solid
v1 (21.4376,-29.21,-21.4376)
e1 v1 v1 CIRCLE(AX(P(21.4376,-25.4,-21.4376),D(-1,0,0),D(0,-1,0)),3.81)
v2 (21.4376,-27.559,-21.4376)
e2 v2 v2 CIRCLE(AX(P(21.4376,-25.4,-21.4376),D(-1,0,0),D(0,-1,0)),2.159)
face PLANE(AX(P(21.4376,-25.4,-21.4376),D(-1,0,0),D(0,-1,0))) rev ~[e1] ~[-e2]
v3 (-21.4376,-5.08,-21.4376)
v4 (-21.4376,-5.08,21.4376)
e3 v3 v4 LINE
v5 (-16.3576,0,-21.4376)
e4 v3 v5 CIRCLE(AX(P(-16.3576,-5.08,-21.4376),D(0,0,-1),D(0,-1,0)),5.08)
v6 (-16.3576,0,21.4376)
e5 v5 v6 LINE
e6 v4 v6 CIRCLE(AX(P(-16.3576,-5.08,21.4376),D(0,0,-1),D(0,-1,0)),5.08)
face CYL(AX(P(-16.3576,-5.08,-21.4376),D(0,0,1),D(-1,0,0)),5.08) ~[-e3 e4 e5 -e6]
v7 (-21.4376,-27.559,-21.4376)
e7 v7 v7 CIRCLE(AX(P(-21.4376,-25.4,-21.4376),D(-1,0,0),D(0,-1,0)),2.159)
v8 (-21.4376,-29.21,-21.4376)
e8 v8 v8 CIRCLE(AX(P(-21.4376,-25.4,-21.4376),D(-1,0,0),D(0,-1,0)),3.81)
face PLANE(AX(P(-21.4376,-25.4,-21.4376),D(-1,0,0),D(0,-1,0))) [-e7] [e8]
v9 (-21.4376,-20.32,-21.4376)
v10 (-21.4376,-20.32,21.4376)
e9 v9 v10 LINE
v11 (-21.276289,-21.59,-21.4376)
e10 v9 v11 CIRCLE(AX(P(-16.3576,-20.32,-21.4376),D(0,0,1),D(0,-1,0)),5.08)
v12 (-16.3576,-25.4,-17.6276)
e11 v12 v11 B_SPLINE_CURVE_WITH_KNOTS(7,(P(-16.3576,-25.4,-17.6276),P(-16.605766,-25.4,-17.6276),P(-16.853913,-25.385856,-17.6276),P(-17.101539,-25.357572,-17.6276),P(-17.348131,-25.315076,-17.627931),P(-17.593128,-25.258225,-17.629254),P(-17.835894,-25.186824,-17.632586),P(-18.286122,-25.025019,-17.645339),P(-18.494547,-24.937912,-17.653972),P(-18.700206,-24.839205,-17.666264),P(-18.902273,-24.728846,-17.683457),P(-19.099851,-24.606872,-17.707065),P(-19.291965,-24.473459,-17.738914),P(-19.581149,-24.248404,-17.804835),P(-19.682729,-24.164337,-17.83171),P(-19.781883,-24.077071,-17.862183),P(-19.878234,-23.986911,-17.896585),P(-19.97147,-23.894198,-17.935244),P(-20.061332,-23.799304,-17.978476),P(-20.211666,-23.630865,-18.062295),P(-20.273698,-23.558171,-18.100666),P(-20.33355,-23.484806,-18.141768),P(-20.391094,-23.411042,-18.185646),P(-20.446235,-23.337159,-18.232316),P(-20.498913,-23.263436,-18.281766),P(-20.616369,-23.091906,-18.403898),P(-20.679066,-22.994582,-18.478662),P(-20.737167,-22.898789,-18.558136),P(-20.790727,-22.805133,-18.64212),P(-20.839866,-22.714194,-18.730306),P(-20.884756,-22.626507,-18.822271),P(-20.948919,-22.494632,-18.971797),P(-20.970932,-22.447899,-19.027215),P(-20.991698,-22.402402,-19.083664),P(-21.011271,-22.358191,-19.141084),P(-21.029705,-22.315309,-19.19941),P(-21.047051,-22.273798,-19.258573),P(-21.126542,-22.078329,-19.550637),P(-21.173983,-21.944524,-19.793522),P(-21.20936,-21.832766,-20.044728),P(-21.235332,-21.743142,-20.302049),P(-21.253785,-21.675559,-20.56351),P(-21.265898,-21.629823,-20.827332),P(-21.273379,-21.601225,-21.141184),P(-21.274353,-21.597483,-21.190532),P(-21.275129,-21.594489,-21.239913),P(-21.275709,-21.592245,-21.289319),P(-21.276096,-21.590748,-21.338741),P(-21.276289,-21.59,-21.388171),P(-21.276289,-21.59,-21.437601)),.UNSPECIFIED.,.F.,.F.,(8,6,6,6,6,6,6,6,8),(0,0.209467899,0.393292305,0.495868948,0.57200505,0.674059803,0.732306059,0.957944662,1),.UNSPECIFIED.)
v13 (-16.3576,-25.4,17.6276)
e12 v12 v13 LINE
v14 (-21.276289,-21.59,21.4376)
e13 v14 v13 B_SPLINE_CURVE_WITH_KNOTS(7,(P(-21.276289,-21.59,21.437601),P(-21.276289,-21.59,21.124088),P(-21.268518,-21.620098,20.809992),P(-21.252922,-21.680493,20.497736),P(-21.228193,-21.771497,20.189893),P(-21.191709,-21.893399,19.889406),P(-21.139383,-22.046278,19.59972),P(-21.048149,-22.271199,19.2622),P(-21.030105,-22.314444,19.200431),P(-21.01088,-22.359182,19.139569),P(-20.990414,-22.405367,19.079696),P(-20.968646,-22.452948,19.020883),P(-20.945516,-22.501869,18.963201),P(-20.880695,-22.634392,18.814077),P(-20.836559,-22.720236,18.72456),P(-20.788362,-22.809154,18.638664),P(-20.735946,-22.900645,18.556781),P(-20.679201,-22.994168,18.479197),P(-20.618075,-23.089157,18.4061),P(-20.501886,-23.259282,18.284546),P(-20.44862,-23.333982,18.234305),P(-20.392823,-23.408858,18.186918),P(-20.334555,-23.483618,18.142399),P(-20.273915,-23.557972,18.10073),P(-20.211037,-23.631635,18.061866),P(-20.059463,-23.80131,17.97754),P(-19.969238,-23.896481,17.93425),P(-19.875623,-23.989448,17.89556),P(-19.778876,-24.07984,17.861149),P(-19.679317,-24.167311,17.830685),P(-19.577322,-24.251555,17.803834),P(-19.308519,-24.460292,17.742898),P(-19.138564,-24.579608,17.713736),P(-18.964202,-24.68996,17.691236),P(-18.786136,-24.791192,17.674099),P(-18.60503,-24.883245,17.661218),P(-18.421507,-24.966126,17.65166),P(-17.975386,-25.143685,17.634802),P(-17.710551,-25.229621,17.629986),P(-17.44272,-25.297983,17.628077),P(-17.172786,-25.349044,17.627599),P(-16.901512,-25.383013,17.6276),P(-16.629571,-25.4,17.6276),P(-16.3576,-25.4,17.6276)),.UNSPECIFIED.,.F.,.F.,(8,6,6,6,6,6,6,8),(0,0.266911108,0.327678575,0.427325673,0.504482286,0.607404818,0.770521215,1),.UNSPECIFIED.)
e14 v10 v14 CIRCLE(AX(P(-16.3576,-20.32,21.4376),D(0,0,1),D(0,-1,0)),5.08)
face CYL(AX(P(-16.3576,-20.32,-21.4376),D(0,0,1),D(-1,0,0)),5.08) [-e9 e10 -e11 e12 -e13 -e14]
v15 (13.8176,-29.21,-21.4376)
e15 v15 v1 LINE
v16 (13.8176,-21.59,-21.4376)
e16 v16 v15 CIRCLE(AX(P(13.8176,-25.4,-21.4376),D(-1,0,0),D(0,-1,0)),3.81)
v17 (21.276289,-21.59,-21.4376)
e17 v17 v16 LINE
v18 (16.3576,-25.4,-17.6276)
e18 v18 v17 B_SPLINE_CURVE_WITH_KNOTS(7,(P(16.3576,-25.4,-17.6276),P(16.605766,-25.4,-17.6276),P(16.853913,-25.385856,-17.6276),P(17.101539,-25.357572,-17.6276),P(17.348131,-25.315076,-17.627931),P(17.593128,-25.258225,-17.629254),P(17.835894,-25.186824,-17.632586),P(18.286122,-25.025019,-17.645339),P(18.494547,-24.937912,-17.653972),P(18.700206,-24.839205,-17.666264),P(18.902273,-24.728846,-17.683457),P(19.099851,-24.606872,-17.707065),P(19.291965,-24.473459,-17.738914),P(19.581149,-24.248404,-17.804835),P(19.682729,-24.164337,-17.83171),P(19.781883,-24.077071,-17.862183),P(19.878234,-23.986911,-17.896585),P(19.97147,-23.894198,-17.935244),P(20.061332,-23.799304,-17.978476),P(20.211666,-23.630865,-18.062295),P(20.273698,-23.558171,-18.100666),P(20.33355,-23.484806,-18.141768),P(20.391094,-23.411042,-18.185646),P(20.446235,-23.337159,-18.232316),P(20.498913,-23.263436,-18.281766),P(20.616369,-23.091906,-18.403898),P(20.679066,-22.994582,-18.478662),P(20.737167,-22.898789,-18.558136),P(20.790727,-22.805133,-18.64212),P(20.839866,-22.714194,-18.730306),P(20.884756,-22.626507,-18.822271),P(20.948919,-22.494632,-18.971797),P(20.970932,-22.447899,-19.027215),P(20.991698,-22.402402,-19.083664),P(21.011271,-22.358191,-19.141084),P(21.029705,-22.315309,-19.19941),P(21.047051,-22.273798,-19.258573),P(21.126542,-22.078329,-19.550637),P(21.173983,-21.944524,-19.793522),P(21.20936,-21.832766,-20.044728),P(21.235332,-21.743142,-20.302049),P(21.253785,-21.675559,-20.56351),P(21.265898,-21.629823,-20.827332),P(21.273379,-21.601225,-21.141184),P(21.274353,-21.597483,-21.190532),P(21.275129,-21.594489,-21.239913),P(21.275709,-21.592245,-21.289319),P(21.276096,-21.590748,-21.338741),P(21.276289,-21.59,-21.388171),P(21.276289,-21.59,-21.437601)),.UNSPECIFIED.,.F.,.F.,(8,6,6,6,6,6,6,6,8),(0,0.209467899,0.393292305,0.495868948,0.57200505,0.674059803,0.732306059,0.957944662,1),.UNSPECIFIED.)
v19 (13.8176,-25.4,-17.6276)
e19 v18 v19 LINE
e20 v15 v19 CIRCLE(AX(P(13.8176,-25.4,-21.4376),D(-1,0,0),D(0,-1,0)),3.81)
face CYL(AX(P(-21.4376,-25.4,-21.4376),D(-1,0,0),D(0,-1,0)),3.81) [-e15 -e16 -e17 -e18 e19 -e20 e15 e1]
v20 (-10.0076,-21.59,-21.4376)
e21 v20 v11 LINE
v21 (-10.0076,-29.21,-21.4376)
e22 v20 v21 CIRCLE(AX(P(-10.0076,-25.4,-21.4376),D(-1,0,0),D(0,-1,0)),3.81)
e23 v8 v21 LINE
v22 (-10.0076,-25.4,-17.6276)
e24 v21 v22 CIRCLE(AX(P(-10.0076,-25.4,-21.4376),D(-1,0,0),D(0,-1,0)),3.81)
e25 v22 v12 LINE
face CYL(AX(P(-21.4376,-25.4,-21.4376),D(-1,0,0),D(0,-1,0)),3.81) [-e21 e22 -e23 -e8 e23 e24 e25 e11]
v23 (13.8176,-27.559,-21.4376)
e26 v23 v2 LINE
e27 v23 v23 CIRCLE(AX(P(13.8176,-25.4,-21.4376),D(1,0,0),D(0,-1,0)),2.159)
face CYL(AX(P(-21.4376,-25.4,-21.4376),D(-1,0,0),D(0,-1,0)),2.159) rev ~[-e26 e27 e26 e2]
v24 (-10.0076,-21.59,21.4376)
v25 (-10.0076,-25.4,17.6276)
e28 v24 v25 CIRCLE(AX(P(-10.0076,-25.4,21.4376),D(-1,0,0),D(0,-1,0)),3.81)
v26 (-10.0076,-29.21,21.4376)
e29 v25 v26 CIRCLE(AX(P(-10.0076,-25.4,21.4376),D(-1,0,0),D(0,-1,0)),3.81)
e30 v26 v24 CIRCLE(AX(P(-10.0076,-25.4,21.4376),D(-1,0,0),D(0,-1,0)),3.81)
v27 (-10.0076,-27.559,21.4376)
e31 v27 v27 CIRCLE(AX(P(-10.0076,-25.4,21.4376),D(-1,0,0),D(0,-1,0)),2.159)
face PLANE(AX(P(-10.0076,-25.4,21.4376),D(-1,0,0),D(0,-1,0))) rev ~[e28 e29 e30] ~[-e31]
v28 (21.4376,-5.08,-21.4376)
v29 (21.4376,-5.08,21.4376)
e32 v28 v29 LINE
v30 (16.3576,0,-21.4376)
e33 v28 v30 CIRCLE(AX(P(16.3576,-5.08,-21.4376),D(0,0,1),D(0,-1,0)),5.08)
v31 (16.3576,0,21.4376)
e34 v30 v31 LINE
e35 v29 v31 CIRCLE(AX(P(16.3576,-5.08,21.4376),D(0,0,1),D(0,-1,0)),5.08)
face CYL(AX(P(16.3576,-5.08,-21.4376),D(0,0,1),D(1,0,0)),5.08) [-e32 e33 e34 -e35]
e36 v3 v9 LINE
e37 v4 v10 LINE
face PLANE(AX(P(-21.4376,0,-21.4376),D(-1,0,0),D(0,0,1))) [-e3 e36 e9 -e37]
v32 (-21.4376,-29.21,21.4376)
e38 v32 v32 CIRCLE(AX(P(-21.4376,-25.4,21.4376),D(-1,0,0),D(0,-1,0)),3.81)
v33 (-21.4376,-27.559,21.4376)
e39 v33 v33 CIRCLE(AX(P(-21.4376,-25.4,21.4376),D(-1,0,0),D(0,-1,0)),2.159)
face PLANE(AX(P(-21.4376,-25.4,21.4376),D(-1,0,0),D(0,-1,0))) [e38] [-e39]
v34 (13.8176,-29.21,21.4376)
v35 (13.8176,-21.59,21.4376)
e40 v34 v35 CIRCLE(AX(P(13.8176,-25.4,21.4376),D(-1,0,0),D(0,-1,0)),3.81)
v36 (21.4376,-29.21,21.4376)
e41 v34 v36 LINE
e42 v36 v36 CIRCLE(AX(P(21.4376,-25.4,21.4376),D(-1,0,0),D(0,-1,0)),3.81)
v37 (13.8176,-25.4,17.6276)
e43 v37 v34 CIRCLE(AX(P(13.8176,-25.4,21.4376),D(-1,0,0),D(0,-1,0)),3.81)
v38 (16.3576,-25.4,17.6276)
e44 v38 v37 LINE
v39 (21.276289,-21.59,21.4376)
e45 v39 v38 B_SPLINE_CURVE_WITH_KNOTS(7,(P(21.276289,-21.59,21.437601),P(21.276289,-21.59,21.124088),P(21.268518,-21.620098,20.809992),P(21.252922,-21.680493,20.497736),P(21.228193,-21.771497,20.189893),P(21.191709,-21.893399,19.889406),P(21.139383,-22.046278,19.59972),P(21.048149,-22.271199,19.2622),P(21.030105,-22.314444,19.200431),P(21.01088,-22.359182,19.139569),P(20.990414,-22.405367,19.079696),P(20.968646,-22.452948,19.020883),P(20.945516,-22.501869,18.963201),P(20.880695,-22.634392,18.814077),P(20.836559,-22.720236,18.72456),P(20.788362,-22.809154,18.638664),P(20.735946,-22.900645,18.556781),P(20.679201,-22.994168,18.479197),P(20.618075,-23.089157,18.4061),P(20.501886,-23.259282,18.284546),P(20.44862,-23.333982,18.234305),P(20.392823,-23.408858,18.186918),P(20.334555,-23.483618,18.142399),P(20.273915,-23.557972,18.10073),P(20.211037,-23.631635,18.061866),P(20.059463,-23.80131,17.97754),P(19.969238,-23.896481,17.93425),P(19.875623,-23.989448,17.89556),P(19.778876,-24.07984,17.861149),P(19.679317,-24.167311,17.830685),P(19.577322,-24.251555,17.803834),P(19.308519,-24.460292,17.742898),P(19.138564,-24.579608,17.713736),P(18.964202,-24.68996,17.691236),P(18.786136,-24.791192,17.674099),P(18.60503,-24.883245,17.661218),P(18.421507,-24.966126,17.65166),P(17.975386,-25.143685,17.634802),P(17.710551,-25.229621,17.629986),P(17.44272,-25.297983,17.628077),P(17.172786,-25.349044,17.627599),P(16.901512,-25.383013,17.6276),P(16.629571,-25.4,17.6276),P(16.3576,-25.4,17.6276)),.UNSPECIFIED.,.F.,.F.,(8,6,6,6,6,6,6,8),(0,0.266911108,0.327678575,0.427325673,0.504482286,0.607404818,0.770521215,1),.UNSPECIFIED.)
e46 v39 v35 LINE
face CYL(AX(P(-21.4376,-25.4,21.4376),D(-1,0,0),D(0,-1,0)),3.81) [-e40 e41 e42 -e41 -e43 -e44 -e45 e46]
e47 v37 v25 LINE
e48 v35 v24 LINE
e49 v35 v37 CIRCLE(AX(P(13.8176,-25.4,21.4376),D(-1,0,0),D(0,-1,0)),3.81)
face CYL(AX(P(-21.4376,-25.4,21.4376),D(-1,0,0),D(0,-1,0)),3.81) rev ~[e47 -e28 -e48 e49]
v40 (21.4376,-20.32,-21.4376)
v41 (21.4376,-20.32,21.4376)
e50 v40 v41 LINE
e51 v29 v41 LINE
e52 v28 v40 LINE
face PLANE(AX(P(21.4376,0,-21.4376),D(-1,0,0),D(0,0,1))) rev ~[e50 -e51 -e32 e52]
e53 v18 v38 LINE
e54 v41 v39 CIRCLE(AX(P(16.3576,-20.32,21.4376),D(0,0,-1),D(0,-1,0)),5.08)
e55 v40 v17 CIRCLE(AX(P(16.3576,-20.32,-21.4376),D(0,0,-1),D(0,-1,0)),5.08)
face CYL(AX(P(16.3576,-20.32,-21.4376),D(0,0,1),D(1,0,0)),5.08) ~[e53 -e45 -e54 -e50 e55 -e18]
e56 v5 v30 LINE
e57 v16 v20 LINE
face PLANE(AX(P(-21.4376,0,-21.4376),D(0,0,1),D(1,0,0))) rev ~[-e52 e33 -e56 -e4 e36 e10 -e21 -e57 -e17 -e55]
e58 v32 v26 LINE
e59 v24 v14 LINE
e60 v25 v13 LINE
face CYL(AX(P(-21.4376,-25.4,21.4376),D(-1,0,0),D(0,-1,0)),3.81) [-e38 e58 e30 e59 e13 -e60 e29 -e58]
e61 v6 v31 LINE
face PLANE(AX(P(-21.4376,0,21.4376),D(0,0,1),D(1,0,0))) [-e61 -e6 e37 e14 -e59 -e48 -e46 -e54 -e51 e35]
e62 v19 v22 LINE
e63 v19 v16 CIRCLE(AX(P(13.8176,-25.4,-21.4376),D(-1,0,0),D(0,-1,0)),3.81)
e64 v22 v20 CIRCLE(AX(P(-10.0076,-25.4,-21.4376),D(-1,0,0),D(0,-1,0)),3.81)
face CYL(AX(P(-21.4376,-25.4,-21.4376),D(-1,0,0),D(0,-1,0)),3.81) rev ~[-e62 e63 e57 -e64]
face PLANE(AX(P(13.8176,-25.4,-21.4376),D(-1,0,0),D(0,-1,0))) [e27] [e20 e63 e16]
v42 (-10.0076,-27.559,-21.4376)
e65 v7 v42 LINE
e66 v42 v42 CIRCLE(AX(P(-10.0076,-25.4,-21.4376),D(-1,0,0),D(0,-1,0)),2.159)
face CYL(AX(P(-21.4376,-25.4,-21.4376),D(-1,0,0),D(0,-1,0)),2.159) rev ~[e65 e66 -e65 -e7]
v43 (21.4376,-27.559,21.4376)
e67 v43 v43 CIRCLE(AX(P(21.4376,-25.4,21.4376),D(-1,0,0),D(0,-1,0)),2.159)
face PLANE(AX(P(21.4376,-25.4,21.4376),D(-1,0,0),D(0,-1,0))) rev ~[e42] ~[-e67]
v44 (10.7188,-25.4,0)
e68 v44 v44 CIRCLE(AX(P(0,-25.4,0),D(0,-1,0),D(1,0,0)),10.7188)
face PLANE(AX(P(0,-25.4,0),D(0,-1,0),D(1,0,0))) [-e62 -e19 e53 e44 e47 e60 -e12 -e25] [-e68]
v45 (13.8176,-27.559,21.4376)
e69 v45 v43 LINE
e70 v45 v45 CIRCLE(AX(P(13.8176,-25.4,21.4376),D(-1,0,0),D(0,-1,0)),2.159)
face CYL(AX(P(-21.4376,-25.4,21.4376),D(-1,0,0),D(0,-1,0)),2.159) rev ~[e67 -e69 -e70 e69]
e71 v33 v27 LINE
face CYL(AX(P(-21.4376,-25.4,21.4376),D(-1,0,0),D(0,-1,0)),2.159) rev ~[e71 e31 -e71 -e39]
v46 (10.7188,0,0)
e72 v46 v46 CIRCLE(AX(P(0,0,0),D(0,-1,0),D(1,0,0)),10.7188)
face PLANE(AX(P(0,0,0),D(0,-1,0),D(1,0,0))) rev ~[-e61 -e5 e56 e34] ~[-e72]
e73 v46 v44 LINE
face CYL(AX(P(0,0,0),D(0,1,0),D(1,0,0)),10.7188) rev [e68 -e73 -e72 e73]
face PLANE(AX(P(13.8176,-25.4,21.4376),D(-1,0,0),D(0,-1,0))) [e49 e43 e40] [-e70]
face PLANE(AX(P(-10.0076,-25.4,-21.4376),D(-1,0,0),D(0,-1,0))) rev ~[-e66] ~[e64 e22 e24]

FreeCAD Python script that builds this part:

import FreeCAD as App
import Part
import Sketcher
Q = App.Units.Quantity


def edges_at(feature, points):
    """Names of the edges that pass closest to the given points."""
    edges = feature.Shape.Edges
    near = lambda p: min(range(len(edges)), key=lambda i: edges[i].distToShape(Part.Vertex(*p))[0])
    return sorted({f"Edge{near(p) + 1}" for p in points})

doc = App.newDocument("Part")
body = doc.addObject("PartDesign::Body", "Body")

sketch1 = body.newObject("Sketcher::SketchObject", "Sketch")
sketch1.AttachmentSupport = (doc.getObject("XZ_Plane"), [""])
sketch1.MapMode = "FlatFace"
sketch1.addGeometry(Part.LineSegment(App.Vector(-21, 21, 0), App.Vector(-21, -21, 0)), False)
sketch1.addGeometry(Part.LineSegment(App.Vector(-21, -21, 0), App.Vector(21, -21, 0)), False)
sketch1.addGeometry(Part.LineSegment(App.Vector(21, -21, 0), App.Vector(21, 21, 0)), False)
sketch1.addGeometry(Part.LineSegment(App.Vector(21, 21, 0), App.Vector(-21, 21, 0)), False)
sketch1.addGeometry(Part.Circle(App.Vector(0, 0, 0), App.Vector(0, 0, 1), 11), False)
sketch1.addConstraint(Sketcher.Constraint("Coincident", 0, 2, 1, 1))
sketch1.addConstraint(Sketcher.Constraint("Coincident", 1, 2, 2, 1))
sketch1.addConstraint(Sketcher.Constraint("Coincident", 2, 2, 3, 1))
sketch1.addConstraint(Sketcher.Constraint("Coincident", 3, 2, 0, 1))
sketch1.addConstraint(Sketcher.Constraint("Vertical", 0))
sketch1.addConstraint(Sketcher.Constraint("Horizontal", 1))
sketch1.addConstraint(Sketcher.Constraint("Vertical", 2))
sketch1.addConstraint(Sketcher.Constraint("Horizontal", 3))
sketch1.addConstraint(Sketcher.Constraint("Coincident", 4, 3, -1, 1))
sketch1.addConstraint(Sketcher.Constraint("Symmetric", 0, 2, 2, 2, -1, 1))
sketch1.addConstraint(Sketcher.Constraint("Equal", 3, 0))
sketch1.addConstraint(Sketcher.Constraint("Diameter", 4, Q("0.844 in")))
sketch1.addConstraint(Sketcher.Constraint("DistanceX", 1, 1, 1, 2, Q("1.688 in")))
pad1 = body.newObject("PartDesign::Pad", "Pad")
pad1.Profile = sketch1
pad1.Length = Q("1 in")
doc.recompute()

fillet = body.newObject("PartDesign::Fillet", "Fillet")
fillet.Base = (pad1, edges_at(pad1, [
    (21.438, 0, 0),
    (21.438, -25.4, 0),
    (-21.438, 0, 0),
    (-21.438, -25.4, 0),
]))
fillet.Radius = Q("0.2 in")

sketch2 = body.newObject("Sketcher::SketchObject", "Sketch001")
sketch2.AttachmentSupport = (doc.getObject("YZ_Plane"), [""])
sketch2.MapMode = "FlatFace"
sketch2.AttachmentOffset = App.Placement(App.Vector(0, 0, -0.844 * 25.4), App.Rotation())
sketch2.addGeometry(Part.Circle(App.Vector(-25.4, 21.4, 0), App.Vector(0, 0, 1), 3.8), False)
sketch2.addGeometry(Part.Circle(App.Vector(-25.4, -21.4, 0), App.Vector(0, 0, 1), 3.8), False)
sketch2.addGeometry(Part.Circle(App.Vector(-25.4, -21.4, 0), App.Vector(0, 0, 1), 2.2), False)
sketch2.addConstraint(Sketcher.Constraint("Coincident", 2, 3, 1, 3))
sketch2.addConstraint(Sketcher.Constraint("Equal", 0, 1))
sketch2.addConstraint(Sketcher.Constraint("Symmetric", 0, 3, 1, 3, -1))
sketch2.addConstraint(Sketcher.Constraint("Diameter", 0, Q("0.3 in")))
sketch2.addConstraint(Sketcher.Constraint("Diameter", 2, Q("0.17 in")))
sketch2.addConstraint(Sketcher.Constraint("DistanceX", 0, 3, -1, 1, Q("1 in")))
sketch2.addConstraint(Sketcher.Constraint("DistanceY", -1, 1, 0, 3, Q("0.844 in")))
pad2 = body.newObject("PartDesign::Pad", "Pad001")
pad2.Profile = sketch2
pad2.Length = Q("1.688 in")

sketch3 = body.newObject("Sketcher::SketchObject", "Sketch002")
sketch3.AttachmentSupport = (doc.getObject("YZ_Plane"), [""])
sketch3.MapMode = "FlatFace"
sketch3.AttachmentOffset = App.Placement(App.Vector(0, 0, -0.844 * 25.4), App.Rotation())
sketch3.addGeometry(Part.Circle(App.Vector(-25.4, 21.4, 0), App.Vector(0, 0, 1), 2.2), False)
sketch3.addConstraint(Sketcher.Constraint("Diameter", 0, Q("0.17 in")))
sketch3.addConstraint(Sketcher.Constraint("DistanceX", 0, 3, -1, 1, Q("1 in")))
sketch3.addConstraint(Sketcher.Constraint("DistanceY", -1, 1, 0, 3, Q("0.844 in")))
pocket1 = body.newObject("PartDesign::Pocket", "Pocket")
pocket1.Profile = sketch3
pocket1.Length = Q("1.889 in")
pocket1.Reversed = True

sketch4 = body.newObject("Sketcher::SketchObject", "Sketch003")
sketch4.AttachmentSupport = (doc.getObject("YZ_Plane"), [""])
sketch4.MapMode = "FlatFace"
sketch4.AttachmentOffset = App.Placement(App.Vector(0, 0, -0.844 * 25.4), App.Rotation())
sketch4.addGeometry(Part.Circle(App.Vector(-25.4, 21.4, 0), App.Vector(0, 0, 1), 3.8), False)
sketch4.addGeometry(Part.Circle(App.Vector(-25.4, 21.4, 0), App.Vector(0, 0, 1), 2.2), False)
sketch4.addGeometry(Part.Circle(App.Vector(-25.4, -21.4, 0), App.Vector(0, 0, 1), 3.8), False)
sketch4.addGeometry(Part.Circle(App.Vector(-25.4, -21.4, 0), App.Vector(0, 0, 1), 2.2), False)
sketch4.addConstraint(Sketcher.Constraint("Coincident", 1, 3, 0, 3))
sketch4.addConstraint(Sketcher.Constraint("Coincident", 3, 3, 2, 3))
sketch4.addConstraint(Sketcher.Constraint("Equal", 0, 2))
sketch4.addConstraint(Sketcher.Constraint("Equal", 1, 3))
sketch4.addConstraint(Sketcher.Constraint("Symmetric", 0, 3, 2, 3, -1))
sketch4.addConstraint(Sketcher.Constraint("Diameter", 0, Q("0.3 in")))
sketch4.addConstraint(Sketcher.Constraint("Diameter", 1, Q("0.17 in")))
sketch4.addConstraint(Sketcher.Constraint("DistanceX", 0, 3, -1, 1, Q("1 in")))
sketch4.addConstraint(Sketcher.Constraint("DistanceY", -1, 1, 0, 3, Q("0.844 in")))
pocket2 = body.newObject("PartDesign::Pocket", "Pocket001")
pocket2.Profile = sketch4
pocket2.Length = Q("1.388 in")
pocket2.Reversed = True

sketch5 = body.newObject("Sketcher::SketchObject", "Sketch004")
sketch5.AttachmentSupport = (doc.getObject("YZ_Plane"), [""])
sketch5.MapMode = "FlatFace"
sketch5.AttachmentOffset = App.Placement(App.Vector(0, 0, -0.844 * 25.4), App.Rotation())
sketch5.addGeometry(Part.Circle(App.Vector(-25.4, 21.4, 0), App.Vector(0, 0, 1), 3.8), False)
sketch5.addGeometry(Part.Circle(App.Vector(-25.4, 21.4, 0), App.Vector(0, 0, 1), 2.2), False)
sketch5.addGeometry(Part.Circle(App.Vector(-25.4, -21.4, 0), App.Vector(0, 0, 1), 3.8), False)
sketch5.addGeometry(Part.Circle(App.Vector(-25.4, -21.4, 0), App.Vector(0, 0, 1), 2.2), False)
sketch5.addConstraint(Sketcher.Constraint("Coincident", 1, 3, 0, 3))
sketch5.addConstraint(Sketcher.Constraint("Coincident", 3, 3, 2, 3))
sketch5.addConstraint(Sketcher.Constraint("Equal", 0, 2))
sketch5.addConstraint(Sketcher.Constraint("Equal", 1, 3))
sketch5.addConstraint(Sketcher.Constraint("Symmetric", 0, 3, 2, 3, -1))
sketch5.addConstraint(Sketcher.Constraint("Diameter", 0, Q("0.3 in")))
sketch5.addConstraint(Sketcher.Constraint("Diameter", 1, Q("0.17 in")))
sketch5.addConstraint(Sketcher.Constraint("DistanceX", 0, 3, -1, 1, Q("1 in")))
sketch5.addConstraint(Sketcher.Constraint("DistanceY", -1, 1, 0, 3, Q("0.844 in")))
pad3 = body.newObject("PartDesign::Pad", "Pad002")
pad3.Profile = sketch5
pad3.Length = Q("0.45 in")

sketch6 = body.newObject("Sketcher::SketchObject", "Sketch005")
sketch6.AttachmentSupport = (doc.getObject("YZ_Plane"), [""])
sketch6.MapMode = "FlatFace"
sketch6.AttachmentOffset = App.Placement(App.Vector(0, 0, -0.844 * 25.4), App.Rotation())
sketch6.addGeometry(Part.Circle(App.Vector(-25.4, -21.4, 0), App.Vector(0, 0, 1), 2.2), False)
sketch6.addConstraint(Sketcher.Constraint("Diameter", 0, Q("0.17 in")))
sketch6.addConstraint(Sketcher.Constraint("DistanceX", 0, 3, -1, 1, Q("1 in")))
sketch6.addConstraint(Sketcher.Constraint("DistanceY", 0, 3, -1, 1, Q("0.844 in")))
pocket3 = body.newObject("PartDesign::Pocket", "Pocket002")
pocket3.Profile = sketch6
pocket3.Length = Q("2.29 in")
pocket3.Reversed = True

doc.recompute()
